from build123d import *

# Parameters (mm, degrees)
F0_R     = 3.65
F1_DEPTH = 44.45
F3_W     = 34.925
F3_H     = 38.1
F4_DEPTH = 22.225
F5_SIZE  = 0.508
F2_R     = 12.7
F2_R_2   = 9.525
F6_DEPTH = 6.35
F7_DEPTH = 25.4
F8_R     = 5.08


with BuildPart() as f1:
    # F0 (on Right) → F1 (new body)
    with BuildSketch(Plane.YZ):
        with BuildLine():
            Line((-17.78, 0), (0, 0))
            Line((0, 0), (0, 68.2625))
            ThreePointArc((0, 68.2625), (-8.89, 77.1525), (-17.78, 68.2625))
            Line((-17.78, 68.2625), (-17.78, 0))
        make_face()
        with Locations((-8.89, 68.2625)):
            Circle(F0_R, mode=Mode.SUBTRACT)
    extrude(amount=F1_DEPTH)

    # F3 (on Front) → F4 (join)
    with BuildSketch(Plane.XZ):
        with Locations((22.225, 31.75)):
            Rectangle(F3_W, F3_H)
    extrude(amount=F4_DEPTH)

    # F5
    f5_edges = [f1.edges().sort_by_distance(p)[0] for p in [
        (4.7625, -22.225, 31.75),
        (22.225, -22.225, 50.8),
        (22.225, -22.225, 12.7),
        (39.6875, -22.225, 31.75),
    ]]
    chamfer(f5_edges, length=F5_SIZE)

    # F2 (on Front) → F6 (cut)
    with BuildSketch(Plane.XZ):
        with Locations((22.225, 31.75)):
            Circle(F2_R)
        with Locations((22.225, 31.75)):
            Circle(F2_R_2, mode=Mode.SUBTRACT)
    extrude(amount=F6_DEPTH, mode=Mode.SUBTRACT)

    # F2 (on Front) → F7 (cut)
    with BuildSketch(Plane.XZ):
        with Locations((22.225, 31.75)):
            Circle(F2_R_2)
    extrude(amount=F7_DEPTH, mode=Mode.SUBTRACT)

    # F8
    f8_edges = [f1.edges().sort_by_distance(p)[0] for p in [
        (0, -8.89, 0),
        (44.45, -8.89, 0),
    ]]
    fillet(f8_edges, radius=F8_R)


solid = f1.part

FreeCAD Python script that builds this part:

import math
import FreeCAD as App
import Part
import Sketcher

V = App.Vector
Q = App.Units.Quantity


def edges_at(feature, points):
    """Names of the edges that pass closest to the given points."""
    edges = feature.Shape.Edges
    near = lambda p: min(range(len(edges)), key=lambda i: edges[i].distToShape(Part.Vertex(*p))[0])
    return sorted({f"Edge{near(p) + 1}" for p in points})


def add_polygon(sketch, points):
    """Adds a closed chain of lines whose ends are joined by coincident constraints."""
    first, n = sketch.GeometryCount, len(points)
    for a, b in zip(points, points[1:] + points[:1]):
        sketch.addGeometry(Part.LineSegment(App.Vector(*a, 0), App.Vector(*b, 0)), False)
    for i in range(n):
        sketch.addConstraint(Sketcher.Constraint("Coincident", first + i, 2, first + (i + 1) % n, 1))

doc = App.newDocument("Part")
params = doc.addObject("Spreadsheet::Sheet", "Params")
for row, (alias, value) in enumerate([
    ("sketch1_radius", "0.35 in"),
    ("sketch1_height", "2.6875 in"),
    ("pad1_length", "1.75 in"),
    ("sketch2_height", "1.5 in"),
    ("sketch2_width", "1.375 in"),
    ("pad2_length", "0.875 in"),
    ("chamfer_size", "0.02 in"),
    ("sketch3_diameter", "1 in"),
    ("sketch3_diameter2", "0.75 in"),
    ("pocket1_length", "0.25 in"),
    ("sketch4_diameter", "0.75 in"),
    ("pocket2_length", "1 in"),
    ("fillet_radius", "0.2 in"),
], start=1):
    params.set(f"A{row}", alias)
    params.set(f"B{row}", "=" + value)
    params.setAlias(f"B{row}", alias)

body = doc.addObject("PartDesign::Body", "Body")

# Sketch on YZ plane
sketch1 = body.newObject("Sketcher::SketchObject", "Sketch")
sketch1.AttachmentSupport = (doc.getObject("YZ_Plane"), [""])
sketch1.MapMode = "FlatFace"
sketch1.addGeometry([
    Part.LineSegment(V(-17.8, 0, 0), V(0, 0, 0)),  # 0
    Part.LineSegment(V(0, 0, 0), V(0, 68.3, 0)),  # 1
    Part.ArcOfCircle(Part.Circle(V(-8.9, 68.3, 0), V(0, 0, 1), 8.9), math.radians(0), math.radians(180)),  # 2
    Part.LineSegment(V(-17.8, 68.3, 0), V(-17.8, 0, 0)),  # 3
    Part.Circle(V(-8.9, 68.3, 0), V(0, 0, 1), 3.6),  # 4
], False)
sketch1.addConstraint([
    Sketcher.Constraint("Coincident", 0, 2, 1, 1),
    Sketcher.Constraint("Tangent", 1, 2, 2, 1),
    Sketcher.Constraint("Tangent", 2, 2, 3, 1),
    Sketcher.Constraint("Coincident", 3, 2, 0, 1),
    Sketcher.Constraint("Horizontal", 0),
    Sketcher.Constraint("Vertical", 1),
    Sketcher.Constraint("Vertical", 3),
    Sketcher.Constraint("Coincident", 0, 2, -1, 1),
    Sketcher.Constraint("Coincident", 4, 3, 2, 3),
    Sketcher.Constraint("Radius", 2, Q("0.35 in")),
    Sketcher.Constraint("Diameter", 4, 7.3),
    Sketcher.Constraint("DistanceY", 1, 1, 1, 2, Q("2.6875 in")),
])
sketch1.setExpression("Constraints[9]", "Params.sketch1_radius")
sketch1.setExpression("Constraints[11]", "Params.sketch1_height")
pad1 = body.newObject("PartDesign::Pad", "Pad")
pad1.Profile = sketch1
pad1.setExpression("Length", "Params.pad1_length")

# Sketch on XZ plane
sketch2 = body.newObject("Sketcher::SketchObject", "Sketch001")
sketch2.AttachmentSupport = (doc.getObject("XZ_Plane"), [""])
sketch2.MapMode = "FlatFace"
add_polygon(sketch2, [(5, 51), (5, 13), (40, 13), (40, 51)])  # lines 0-3
sketch2.addConstraint([
    Sketcher.Constraint("Vertical", 0),
    Sketcher.Constraint("Horizontal", 1),
    Sketcher.Constraint("Vertical", 2),
    Sketcher.Constraint("Horizontal", 3),
    Sketcher.Constraint("DistanceY", 0, 2, 0, 1, Q("1.5 in")),
    Sketcher.Constraint("DistanceY", -1, 1, 2, 2, Q("2 in")),
    Sketcher.Constraint("DistanceX", 1, 1, 1, 2, Q("1.375 in")),
    Sketcher.Constraint("DistanceX", -1, 1, 0, 2, Q("0.1875 in")),
])
sketch2.setExpression("Constraints[8]", "Params.sketch2_height")
sketch2.setExpression("Constraints[10]", "Params.sketch2_width")
pad2 = body.newObject("PartDesign::Pad", "Pad001")
pad2.Profile = sketch2
pad2.setExpression("Length", "Params.pad2_length")
doc.recompute()

chamfer = body.newObject("PartDesign::Chamfer", "Chamfer")
chamfer.Base = (pad2, edges_at(pad2, [
    (4.763, -22.225, 31.75),
    (22.225, -22.225, 50.8),
    (22.225, -22.225, 12.7),
    (39.688, -22.225, 31.75),
]))
chamfer.setExpression("Size", "Params.chamfer_size")

# Sketch on XZ plane
sketch3 = body.newObject("Sketcher::SketchObject", "Sketch002")
sketch3.AttachmentSupport = (doc.getObject("XZ_Plane"), [""])
sketch3.MapMode = "FlatFace"
sketch3.addGeometry([
    Part.Circle(V(22, 32, 0), V(0, 0, 1), 13),
    Part.Circle(V(22, 32, 0), V(0, 0, 1), 10),
], False)
sketch3.addConstraint([
    Sketcher.Constraint("Coincident", 1, 3, 0, 3),
    Sketcher.Constraint("Diameter", 0, Q("1 in")),
    Sketcher.Constraint("Diameter", 1, Q("0.75 in")),
    Sketcher.Constraint("DistanceY", -1, 1, 0, 3, Q("1.25 in")),
    Sketcher.Constraint("DistanceX", -1, 1, 0, 3, Q("0.875 in")),
])
sketch3.setExpression("Constraints[1]", "Params.sketch3_diameter")
sketch3.setExpression("Constraints[2]", "Params.sketch3_diameter2")
pocket1 = body.newObject("PartDesign::Pocket", "Pocket")
pocket1.Profile = sketch3
pocket1.setExpression("Length", "Params.pocket1_length")
pocket1.Reversed = True

# Sketch on XZ plane
sketch4 = body.newObject("Sketcher::SketchObject", "Sketch003")
sketch4.AttachmentSupport = (doc.getObject("XZ_Plane"), [""])
sketch4.MapMode = "FlatFace"
sketch4.addGeometry(Part.Circle(V(22, 32, 0), V(0, 0, 1), 10), False)
sketch4.addConstraint([
    Sketcher.Constraint("Diameter", 0, Q("0.75 in")),
    Sketcher.Constraint("DistanceY", -1, 1, 0, 3, Q("1.25 in")),
    Sketcher.Constraint("DistanceX", -1, 1, 0, 3, Q("0.875 in")),
])
sketch4.setExpression("Constraints[0]", "Params.sketch4_diameter")
pocket2 = body.newObject("PartDesign::Pocket", "Pocket001")
pocket2.Profile = sketch4
pocket2.setExpression("Length", "Params.pocket2_length")
pocket2.Reversed = True
doc.recompute()

fillet = body.newObject("PartDesign::Fillet", "Fillet")
fillet.Base = (pocket2, edges_at(pocket2, [(0, -8.89, 0), (44.45, -8.89, 0)]))
fillet.setExpression("Radius", "Params.fillet_radius")

doc.recompute()
